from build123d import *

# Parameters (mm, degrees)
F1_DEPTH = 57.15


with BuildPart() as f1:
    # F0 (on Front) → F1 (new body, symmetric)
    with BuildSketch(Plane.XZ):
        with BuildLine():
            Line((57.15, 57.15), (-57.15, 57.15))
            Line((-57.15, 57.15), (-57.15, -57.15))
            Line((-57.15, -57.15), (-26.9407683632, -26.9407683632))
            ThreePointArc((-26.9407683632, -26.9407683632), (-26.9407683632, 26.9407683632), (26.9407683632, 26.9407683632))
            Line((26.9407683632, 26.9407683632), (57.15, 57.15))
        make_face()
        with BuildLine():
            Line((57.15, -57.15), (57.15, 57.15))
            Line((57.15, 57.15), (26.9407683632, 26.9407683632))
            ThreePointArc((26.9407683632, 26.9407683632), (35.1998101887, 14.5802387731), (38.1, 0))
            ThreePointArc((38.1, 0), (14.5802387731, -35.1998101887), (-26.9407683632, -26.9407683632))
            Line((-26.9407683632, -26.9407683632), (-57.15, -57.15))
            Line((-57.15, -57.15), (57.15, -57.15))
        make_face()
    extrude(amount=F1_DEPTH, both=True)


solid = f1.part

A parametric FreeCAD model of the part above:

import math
import FreeCAD as App
import Part
import Sketcher
Q = App.Units.Quantity

doc = App.newDocument("Part")
body = doc.addObject("PartDesign::Body", "Body")

sketch1 = body.newObject("Sketcher::SketchObject", "Sketch")
sketch1.AttachmentSupport = (doc.getObject("XZ_Plane"), [""])
sketch1.MapMode = "FlatFace"
sketch1.addGeometry([
    Part.LineSegment(App.Vector(57, 57, 0), App.Vector(-57, 57, 0)),
    Part.LineSegment(App.Vector(-57, 57, 0), App.Vector(-57, -57, 0)),
    Part.LineSegment(App.Vector(-57, -57, 0), App.Vector(57, -57, 0)),
    Part.LineSegment(App.Vector(57, -57, 0), App.Vector(57, 57, 0)),
    Part.ArcOfCircle(Part.Circle(App.Vector(0, 0, 0), App.Vector(0, 0, 1), 38), math.radians(0), math.radians(45)),
    Part.ArcOfCircle(Part.Circle(App.Vector(0, 0, 0), App.Vector(0, 0, 1), 38), math.radians(45), math.radians(360)),
], False)
sketch1.addConstraint([
    Sketcher.Constraint("Coincident", 0, 2, 1, 1),
    Sketcher.Constraint("Coincident", 1, 2, 2, 1),
    Sketcher.Constraint("Coincident", 2, 2, 3, 1),
    Sketcher.Constraint("Coincident", 3, 2, 0, 1),
    Sketcher.Constraint("Tangent", 4, 1, 5, 2),
    Sketcher.Constraint("Coincident", 5, 1, 4, 2),
    Sketcher.Constraint("Horizontal", 0),
    Sketcher.Constraint("Vertical", 1),
    Sketcher.Constraint("Horizontal", 2),
    Sketcher.Constraint("Vertical", 3),
    Sketcher.Constraint("Coincident", 4, 3, -1, 1),
    Sketcher.Constraint("Symmetric", 0, 2, 2, 2, -1, 1),
    Sketcher.Constraint("PointOnObject", 4, 1, -1),
    Sketcher.Constraint("Equal", 2, 1),
    Sketcher.Constraint("Radius", 4, Q("1.5 in")),
    Sketcher.Constraint("DistanceX", 0, 2, 0, 1, Q("4.5 in")),
    Sketcher.Constraint("DistanceX", -1, 1, 5, 1, Q("26.940768 mm")),
])
pad1 = body.newObject("PartDesign::Pad", "Pad")
pad1.Profile = sketch1
pad1.Length = Q("4.5 in")
pad1.Midplane = True

doc.recompute()
